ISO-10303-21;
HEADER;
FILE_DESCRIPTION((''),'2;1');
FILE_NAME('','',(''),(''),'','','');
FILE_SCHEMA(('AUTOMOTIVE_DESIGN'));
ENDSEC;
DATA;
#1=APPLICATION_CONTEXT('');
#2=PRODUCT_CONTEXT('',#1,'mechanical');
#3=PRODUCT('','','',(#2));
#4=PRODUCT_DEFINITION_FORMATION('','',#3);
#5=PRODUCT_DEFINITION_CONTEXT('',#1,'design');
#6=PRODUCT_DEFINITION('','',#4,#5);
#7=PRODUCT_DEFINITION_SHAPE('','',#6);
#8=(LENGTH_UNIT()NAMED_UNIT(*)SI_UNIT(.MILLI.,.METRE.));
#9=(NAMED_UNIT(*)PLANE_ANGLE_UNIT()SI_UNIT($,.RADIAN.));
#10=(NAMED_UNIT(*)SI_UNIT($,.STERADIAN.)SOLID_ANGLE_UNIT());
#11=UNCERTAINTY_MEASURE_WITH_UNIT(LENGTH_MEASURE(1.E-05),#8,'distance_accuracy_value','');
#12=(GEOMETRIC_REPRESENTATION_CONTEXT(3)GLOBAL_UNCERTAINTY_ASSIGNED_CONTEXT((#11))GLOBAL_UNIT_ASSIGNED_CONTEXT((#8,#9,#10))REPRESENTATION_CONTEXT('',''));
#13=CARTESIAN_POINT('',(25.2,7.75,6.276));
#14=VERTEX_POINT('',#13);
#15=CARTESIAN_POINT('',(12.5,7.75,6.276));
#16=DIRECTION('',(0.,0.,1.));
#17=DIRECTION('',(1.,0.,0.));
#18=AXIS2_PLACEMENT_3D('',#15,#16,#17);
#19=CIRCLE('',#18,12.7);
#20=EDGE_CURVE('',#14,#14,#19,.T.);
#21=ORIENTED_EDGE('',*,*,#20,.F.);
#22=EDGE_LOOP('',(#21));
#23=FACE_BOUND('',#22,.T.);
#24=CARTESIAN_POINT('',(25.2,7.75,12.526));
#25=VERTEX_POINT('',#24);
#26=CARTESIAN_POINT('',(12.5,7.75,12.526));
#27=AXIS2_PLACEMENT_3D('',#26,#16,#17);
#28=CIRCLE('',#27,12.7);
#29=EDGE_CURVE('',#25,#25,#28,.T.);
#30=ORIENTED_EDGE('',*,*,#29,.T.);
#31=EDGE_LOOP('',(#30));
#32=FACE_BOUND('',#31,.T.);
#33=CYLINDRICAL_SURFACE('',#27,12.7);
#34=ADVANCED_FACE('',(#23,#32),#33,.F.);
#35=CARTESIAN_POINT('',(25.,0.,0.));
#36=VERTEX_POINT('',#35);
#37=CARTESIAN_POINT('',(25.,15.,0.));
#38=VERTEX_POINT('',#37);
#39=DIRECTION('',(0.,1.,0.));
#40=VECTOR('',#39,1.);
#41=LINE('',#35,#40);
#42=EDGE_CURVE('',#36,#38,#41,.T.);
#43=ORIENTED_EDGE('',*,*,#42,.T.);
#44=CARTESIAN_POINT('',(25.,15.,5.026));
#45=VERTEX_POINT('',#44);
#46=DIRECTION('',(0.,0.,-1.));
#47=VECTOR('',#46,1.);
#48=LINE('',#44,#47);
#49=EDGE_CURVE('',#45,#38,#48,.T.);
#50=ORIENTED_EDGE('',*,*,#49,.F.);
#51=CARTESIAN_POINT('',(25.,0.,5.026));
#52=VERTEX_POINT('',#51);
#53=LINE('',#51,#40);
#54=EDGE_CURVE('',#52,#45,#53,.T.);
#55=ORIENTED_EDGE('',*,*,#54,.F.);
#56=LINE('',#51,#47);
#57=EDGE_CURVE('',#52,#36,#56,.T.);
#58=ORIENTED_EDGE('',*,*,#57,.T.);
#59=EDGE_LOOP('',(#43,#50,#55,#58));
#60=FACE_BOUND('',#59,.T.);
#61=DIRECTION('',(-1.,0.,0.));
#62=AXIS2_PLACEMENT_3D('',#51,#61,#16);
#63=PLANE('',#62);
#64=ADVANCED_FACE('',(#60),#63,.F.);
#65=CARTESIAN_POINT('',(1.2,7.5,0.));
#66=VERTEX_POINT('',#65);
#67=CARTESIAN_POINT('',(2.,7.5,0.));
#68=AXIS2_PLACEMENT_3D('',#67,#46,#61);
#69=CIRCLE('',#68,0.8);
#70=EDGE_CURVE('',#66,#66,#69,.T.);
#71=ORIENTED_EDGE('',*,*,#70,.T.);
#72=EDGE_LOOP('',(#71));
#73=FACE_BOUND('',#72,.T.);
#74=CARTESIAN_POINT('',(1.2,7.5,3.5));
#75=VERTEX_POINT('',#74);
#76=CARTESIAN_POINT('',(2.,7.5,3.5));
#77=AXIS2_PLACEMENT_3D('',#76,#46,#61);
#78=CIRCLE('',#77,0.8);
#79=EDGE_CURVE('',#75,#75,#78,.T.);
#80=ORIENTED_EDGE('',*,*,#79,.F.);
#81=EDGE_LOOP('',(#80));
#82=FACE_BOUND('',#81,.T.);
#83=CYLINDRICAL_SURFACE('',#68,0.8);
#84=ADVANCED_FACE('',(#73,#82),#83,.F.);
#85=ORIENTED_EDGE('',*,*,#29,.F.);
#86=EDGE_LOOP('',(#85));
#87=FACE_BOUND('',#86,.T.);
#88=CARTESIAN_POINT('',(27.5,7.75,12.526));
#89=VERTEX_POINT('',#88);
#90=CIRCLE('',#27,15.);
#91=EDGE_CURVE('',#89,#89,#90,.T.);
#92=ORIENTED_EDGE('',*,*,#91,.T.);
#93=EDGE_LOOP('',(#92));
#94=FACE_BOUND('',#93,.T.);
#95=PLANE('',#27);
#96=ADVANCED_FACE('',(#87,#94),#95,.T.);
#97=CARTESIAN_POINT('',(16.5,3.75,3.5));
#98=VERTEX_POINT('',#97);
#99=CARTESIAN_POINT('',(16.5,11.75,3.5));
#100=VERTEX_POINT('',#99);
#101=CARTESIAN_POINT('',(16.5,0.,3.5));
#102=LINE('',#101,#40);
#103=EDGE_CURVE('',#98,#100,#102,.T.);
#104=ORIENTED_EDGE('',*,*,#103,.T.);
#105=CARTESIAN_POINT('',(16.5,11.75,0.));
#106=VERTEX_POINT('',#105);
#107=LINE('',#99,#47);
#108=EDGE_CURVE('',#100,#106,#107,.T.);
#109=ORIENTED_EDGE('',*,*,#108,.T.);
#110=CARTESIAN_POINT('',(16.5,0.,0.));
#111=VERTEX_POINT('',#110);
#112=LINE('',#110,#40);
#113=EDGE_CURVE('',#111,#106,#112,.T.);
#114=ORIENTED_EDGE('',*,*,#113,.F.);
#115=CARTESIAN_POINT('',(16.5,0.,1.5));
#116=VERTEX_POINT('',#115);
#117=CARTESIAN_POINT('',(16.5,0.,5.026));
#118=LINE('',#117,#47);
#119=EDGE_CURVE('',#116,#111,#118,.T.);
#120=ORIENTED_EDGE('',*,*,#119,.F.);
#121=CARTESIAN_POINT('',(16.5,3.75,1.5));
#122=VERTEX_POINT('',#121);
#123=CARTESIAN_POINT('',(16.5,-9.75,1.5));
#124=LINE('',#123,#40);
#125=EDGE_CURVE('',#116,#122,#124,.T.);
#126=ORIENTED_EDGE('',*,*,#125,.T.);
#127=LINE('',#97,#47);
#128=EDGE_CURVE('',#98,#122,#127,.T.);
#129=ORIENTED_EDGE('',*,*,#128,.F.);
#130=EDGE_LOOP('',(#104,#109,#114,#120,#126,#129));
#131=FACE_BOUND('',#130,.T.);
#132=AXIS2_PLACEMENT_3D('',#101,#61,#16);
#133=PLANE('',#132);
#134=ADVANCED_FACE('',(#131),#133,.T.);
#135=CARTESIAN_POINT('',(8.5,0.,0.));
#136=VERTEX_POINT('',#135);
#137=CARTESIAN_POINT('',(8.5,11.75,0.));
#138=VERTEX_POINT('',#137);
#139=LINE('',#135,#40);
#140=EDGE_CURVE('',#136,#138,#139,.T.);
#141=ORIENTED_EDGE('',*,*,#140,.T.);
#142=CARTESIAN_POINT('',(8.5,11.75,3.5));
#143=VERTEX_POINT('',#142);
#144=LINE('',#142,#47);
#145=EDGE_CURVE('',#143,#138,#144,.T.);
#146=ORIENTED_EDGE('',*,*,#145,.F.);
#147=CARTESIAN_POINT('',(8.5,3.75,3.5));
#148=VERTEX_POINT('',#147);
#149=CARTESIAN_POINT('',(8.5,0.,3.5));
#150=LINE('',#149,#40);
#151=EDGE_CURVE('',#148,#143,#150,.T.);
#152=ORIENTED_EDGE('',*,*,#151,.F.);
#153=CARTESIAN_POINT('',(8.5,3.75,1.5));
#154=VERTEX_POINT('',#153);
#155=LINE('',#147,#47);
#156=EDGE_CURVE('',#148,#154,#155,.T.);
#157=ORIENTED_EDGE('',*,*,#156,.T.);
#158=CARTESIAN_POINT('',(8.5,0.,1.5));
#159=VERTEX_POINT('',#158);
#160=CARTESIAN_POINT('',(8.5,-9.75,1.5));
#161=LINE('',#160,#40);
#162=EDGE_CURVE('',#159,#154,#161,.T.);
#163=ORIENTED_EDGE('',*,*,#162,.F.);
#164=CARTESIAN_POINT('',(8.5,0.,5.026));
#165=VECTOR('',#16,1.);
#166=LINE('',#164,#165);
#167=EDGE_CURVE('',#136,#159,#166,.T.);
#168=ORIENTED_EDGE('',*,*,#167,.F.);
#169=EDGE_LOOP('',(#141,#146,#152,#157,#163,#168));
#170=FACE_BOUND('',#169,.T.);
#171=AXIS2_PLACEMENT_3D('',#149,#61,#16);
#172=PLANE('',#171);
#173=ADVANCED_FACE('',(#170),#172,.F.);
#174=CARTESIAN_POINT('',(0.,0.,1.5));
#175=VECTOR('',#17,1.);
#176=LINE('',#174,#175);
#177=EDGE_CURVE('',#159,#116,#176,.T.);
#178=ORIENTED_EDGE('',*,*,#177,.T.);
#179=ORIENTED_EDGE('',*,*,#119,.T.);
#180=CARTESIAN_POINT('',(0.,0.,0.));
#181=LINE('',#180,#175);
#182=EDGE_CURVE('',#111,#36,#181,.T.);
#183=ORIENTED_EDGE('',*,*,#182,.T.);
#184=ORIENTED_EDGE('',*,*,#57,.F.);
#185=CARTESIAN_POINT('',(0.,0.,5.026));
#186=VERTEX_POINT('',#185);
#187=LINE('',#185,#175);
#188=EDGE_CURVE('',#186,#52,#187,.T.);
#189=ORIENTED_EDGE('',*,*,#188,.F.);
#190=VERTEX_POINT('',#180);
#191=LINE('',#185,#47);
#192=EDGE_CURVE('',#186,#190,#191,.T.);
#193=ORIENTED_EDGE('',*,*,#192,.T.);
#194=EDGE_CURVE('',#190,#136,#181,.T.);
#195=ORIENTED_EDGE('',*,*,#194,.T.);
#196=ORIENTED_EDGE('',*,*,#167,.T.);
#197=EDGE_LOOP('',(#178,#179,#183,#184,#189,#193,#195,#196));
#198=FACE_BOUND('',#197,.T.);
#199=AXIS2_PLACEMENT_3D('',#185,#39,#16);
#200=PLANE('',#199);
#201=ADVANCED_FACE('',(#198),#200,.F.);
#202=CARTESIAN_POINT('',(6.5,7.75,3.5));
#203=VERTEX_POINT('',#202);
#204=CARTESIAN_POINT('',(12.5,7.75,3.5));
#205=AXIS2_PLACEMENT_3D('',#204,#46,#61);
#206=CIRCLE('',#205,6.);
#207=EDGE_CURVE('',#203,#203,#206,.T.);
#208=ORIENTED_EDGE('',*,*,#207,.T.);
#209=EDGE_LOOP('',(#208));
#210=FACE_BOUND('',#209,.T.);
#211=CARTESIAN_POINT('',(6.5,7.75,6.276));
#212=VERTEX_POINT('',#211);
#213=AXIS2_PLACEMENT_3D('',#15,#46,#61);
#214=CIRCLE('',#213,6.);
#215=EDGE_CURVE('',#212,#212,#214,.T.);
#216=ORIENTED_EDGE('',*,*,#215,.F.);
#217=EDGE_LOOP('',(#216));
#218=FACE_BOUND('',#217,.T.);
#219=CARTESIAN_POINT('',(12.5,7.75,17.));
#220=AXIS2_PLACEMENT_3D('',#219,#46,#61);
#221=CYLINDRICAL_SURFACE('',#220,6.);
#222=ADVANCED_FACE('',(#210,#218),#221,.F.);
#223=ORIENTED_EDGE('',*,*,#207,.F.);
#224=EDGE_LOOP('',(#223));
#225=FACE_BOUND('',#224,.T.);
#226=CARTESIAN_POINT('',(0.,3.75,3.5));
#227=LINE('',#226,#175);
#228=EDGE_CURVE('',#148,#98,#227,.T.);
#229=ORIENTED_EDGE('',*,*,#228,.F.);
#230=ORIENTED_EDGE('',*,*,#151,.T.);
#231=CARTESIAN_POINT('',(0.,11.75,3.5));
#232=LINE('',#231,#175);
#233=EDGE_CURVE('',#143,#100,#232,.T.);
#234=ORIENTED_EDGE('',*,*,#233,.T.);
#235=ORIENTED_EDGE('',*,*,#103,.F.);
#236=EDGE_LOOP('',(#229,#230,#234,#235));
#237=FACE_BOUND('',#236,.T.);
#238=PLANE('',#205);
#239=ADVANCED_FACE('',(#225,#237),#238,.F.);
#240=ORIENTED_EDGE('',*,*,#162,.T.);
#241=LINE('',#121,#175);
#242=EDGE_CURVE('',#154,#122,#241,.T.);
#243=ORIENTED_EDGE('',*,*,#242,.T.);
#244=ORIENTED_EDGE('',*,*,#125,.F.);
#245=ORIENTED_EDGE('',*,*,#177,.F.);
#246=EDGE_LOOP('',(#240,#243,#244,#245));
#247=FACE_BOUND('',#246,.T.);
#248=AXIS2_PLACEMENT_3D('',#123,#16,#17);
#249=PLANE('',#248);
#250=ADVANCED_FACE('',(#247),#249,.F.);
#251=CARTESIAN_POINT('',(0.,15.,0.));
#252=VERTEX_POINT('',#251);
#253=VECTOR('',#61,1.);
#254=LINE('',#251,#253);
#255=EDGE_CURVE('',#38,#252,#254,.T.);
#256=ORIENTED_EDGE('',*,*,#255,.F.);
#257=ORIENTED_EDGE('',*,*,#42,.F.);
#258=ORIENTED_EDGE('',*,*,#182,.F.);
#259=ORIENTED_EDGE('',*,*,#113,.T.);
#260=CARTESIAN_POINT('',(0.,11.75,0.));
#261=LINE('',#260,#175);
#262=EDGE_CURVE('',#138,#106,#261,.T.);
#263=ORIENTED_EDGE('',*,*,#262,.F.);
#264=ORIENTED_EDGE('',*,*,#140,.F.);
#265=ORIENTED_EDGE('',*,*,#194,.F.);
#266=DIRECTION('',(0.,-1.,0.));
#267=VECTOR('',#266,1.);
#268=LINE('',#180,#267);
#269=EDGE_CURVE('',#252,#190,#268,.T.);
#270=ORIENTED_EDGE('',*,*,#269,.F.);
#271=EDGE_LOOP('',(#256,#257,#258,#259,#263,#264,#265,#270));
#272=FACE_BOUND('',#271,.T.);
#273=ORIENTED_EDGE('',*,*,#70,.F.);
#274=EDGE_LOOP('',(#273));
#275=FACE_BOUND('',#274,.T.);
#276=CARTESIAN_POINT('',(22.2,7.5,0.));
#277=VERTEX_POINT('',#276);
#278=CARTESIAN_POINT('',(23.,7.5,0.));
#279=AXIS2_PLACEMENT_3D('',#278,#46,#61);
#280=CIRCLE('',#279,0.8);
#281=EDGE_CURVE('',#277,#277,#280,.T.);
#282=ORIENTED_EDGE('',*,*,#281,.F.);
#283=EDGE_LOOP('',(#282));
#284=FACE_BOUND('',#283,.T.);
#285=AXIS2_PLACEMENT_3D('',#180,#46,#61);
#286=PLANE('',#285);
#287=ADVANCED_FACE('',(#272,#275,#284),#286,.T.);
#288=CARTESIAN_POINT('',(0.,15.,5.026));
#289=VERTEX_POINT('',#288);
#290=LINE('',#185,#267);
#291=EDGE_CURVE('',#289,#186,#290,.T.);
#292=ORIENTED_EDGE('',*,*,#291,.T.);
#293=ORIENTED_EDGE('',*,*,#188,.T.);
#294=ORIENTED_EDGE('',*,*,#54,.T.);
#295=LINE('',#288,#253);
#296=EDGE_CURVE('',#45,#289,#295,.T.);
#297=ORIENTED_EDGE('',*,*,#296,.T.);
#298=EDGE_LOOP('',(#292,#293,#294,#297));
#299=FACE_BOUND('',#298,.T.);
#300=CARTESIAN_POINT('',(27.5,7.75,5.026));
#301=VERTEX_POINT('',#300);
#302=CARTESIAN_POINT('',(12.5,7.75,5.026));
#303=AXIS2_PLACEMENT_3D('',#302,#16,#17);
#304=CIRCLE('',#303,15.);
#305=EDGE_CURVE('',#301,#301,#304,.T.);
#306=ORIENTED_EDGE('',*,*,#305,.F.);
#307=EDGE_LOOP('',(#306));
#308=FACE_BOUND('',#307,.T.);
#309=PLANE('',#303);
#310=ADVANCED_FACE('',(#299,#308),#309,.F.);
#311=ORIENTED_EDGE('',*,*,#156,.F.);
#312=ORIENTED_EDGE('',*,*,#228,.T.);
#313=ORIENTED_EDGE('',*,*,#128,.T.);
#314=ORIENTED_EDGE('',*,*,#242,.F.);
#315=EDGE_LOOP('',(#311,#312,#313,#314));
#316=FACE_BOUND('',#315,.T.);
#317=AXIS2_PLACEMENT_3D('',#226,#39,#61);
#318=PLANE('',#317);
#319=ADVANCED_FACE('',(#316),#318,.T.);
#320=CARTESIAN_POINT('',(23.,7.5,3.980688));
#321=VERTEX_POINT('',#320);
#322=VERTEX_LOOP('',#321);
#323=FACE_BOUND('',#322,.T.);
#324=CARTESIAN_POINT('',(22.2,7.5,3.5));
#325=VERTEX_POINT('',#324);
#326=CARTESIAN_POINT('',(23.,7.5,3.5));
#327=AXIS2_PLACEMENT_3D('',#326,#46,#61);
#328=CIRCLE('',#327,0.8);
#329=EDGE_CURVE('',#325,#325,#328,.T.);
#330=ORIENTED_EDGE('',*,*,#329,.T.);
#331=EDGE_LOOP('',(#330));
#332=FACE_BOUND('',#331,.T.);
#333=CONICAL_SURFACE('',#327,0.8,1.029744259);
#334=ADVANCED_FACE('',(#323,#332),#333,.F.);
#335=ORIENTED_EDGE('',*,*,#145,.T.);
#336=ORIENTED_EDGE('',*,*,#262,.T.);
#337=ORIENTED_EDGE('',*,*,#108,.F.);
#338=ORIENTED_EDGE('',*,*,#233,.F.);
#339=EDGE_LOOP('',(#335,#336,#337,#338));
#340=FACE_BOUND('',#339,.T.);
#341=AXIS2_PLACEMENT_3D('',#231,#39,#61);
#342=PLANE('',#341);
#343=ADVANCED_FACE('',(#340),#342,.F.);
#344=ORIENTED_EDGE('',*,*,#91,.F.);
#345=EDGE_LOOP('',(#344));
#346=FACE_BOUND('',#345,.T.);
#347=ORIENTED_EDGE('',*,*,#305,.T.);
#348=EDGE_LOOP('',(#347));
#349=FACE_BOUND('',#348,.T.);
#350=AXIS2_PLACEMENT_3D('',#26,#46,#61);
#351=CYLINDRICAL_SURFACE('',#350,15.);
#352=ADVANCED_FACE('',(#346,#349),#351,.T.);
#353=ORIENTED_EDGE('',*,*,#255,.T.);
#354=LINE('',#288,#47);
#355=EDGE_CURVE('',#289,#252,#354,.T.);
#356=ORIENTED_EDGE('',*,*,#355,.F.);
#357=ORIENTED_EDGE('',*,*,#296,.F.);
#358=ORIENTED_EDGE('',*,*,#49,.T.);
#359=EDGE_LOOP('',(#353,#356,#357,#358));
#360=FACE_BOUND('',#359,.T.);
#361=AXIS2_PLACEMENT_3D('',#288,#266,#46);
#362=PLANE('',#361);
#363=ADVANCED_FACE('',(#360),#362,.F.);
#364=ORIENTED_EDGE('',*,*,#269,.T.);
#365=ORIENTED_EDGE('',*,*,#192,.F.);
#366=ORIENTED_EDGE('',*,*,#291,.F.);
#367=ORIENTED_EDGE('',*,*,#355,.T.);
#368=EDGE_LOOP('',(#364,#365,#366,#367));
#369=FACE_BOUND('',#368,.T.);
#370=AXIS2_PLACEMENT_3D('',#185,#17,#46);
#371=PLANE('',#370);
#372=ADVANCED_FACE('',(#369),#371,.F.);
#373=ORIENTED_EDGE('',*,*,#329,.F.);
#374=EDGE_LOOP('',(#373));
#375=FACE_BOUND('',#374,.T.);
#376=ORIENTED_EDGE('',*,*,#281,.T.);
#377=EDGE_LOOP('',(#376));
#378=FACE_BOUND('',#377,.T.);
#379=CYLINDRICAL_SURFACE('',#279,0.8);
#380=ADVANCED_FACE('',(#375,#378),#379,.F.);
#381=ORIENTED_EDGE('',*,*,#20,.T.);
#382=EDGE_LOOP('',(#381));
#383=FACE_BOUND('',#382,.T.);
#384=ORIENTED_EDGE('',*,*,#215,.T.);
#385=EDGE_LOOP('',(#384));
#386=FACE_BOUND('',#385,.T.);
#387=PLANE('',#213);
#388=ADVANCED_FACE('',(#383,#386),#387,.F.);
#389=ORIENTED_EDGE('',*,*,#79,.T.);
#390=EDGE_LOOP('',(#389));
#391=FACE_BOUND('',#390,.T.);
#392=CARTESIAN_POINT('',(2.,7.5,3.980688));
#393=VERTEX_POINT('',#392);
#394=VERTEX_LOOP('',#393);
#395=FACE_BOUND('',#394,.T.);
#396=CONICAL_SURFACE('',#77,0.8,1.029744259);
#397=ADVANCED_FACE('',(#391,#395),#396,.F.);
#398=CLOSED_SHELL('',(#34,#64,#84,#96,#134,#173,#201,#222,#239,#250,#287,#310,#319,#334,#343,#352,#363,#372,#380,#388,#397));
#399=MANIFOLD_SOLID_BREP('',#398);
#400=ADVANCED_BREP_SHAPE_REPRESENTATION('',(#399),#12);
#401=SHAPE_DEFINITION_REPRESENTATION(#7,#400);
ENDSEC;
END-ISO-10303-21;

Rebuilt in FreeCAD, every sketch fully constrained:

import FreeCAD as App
import Part
import Sketcher

V = App.Vector
Q = App.Units.Quantity


def add_polygon(sketch, points):
    """Adds a closed chain of lines whose ends are joined by coincident constraints."""
    first, n = sketch.GeometryCount, len(points)
    for a, b in zip(points, points[1:] + points[:1]):
        sketch.addGeometry(Part.LineSegment(App.Vector(*a, 0), App.Vector(*b, 0)), False)
    for i in range(n):
        sketch.addConstraint(Sketcher.Constraint("Coincident", first + i, 2, first + (i + 1) % n, 1))

doc = App.newDocument("Part")
body = doc.addObject("PartDesign::Body", "Body")

sketch1 = body.newObject("Sketcher::SketchObject", "Sketch")
sketch1.AttachmentSupport = (doc.getObject("XY_Plane"), [""])
sketch1.MapMode = "FlatFace"
add_polygon(sketch1, [(0, 15), (0, 0), (25, 0), (25, 15)])
sketch1.addConstraint(Sketcher.Constraint("Vertical", 0))
sketch1.addConstraint(Sketcher.Constraint("Horizontal", 1))
sketch1.addConstraint(Sketcher.Constraint("Vertical", 2))
sketch1.addConstraint(Sketcher.Constraint("Horizontal", 3))
sketch1.addConstraint(Sketcher.Constraint("Coincident", 0, 2, -1, 1))
sketch1.addConstraint(Sketcher.Constraint("DistanceX", 1, 1, 1, 2, Q("25 mm")))
sketch1.addConstraint(Sketcher.Constraint("DistanceY", 0, 2, 0, 1, Q("15 mm")))
pad1 = body.newObject("PartDesign::Pad", "Pad")
pad1.Profile = sketch1
pad1.Length = 5.026

sketch2 = body.newObject("Sketcher::SketchObject", "Sketch001")
sketch2.AttachmentSupport = (doc.getObject("XY_Plane"), [""])
sketch2.MapMode = "FlatFace"
sketch2.addGeometry(Part.Circle(V(23, 7.5, 0), V(0, 0, 1), 0.8), False)
sketch2.addGeometry(Part.Circle(V(2, 7.5, 0), V(0, 0, 1), 0.8), False)
sketch2.addConstraint(Sketcher.Constraint("Equal", 0, 1))
sketch2.addConstraint(Sketcher.Constraint("Horizontal", 0, 3, 1, 3))
sketch2.addConstraint(Sketcher.Constraint("Diameter", 0, Q("1.6 mm")))
sketch2.addConstraint(Sketcher.Constraint("DistanceX", -1, 1, 0, 3, Q("23 mm")))
sketch2.addConstraint(Sketcher.Constraint("DistanceX", -1, 1, 1, 3, Q("2 mm")))
sketch2.addConstraint(Sketcher.Constraint("DistanceY", -1, 1, 0, 3, Q("7.5 mm")))
doc.recompute()
hole = body.newObject("PartDesign::Hole", "Hole")
hole.Profile = sketch2
hole.ThreadType = "None"
hole.Diameter = 1.6
hole.DepthType = "Dimension"
hole.Depth = 3.5
hole.DrillPoint = "Angled"
hole.DrillPointAngle = 118
hole.Reversed = True

sketch3 = body.newObject("Sketcher::SketchObject", "Sketch002")
sketch3.AttachmentSupport = (doc.getObject("XY_Plane"), [""])
sketch3.MapMode = "FlatFace"
sketch3.AttachmentOffset = App.Placement(V(0, 0, 5.026), App.Rotation())
sketch3.addGeometry(Part.Circle(V(12, 8, 0), V(0, 0, 1), 15), False)
sketch3.addConstraint(Sketcher.Constraint("Diameter", 0, Q("30 mm")))
sketch3.addConstraint(Sketcher.Constraint("DistanceX", -1, 1, 0, 3, Q("12.5 mm")))
sketch3.addConstraint(Sketcher.Constraint("DistanceY", -1, 1, 0, 3, Q("7.75 mm")))
pad2 = body.newObject("PartDesign::Pad", "Pad001")
pad2.Profile = sketch3
pad2.Length = 7.5

sketch4 = body.newObject("Sketcher::SketchObject", "Sketch003")
sketch4.AttachmentSupport = (doc.getObject("XY_Plane"), [""])
sketch4.MapMode = "FlatFace"
sketch4.AttachmentOffset = App.Placement(V(0, 0, 12.526), App.Rotation())
sketch4.addGeometry(Part.Circle(V(12, 8, 0), V(0, 0, 1), 12), False)
sketch4.addConstraint(Sketcher.Constraint("Diameter", 0, Q("24.5 mm")))
sketch4.addConstraint(Sketcher.Constraint("DistanceX", -1, 1, 0, 3, Q("12.5 mm")))
sketch4.addConstraint(Sketcher.Constraint("DistanceY", -1, 1, 0, 3, Q("7.75 mm")))
pocket1 = body.newObject("PartDesign::Pocket", "Pocket")
pocket1.Profile = sketch4
pocket1.Length = 5.25

sketch5 = body.newObject("Sketcher::SketchObject", "Sketch004")
sketch5.AttachmentSupport = (doc.getObject("XY_Plane"), [""])
sketch5.MapMode = "FlatFace"
sketch5.AttachmentOffset = App.Placement(V(0, 0, 12.526), App.Rotation())
sketch5.addGeometry(Part.Circle(V(12, 8, 0), V(0, 0, 1), 13), False)
sketch5.addConstraint(Sketcher.Constraint("Diameter", 0, Q("25.4 mm")))
sketch5.addConstraint(Sketcher.Constraint("DistanceX", -1, 1, 0, 3, Q("12.5 mm")))
sketch5.addConstraint(Sketcher.Constraint("DistanceY", -1, 1, 0, 3, Q("7.75 mm")))
doc.recompute()
hole2 = body.newObject("PartDesign::Hole", "Hole001")
hole2.Profile = sketch5
hole2.ThreadType = "None"
hole2.Diameter = 25.4
hole2.DepthType = "Dimension"
hole2.Depth = 6.25
hole2.DrillPoint = "Flat"

sketch6 = body.newObject("Sketcher::SketchObject", "Sketch005")
sketch6.AttachmentSupport = (doc.getObject("XY_Plane"), [""])
sketch6.MapMode = "FlatFace"
add_polygon(sketch6, [(16, 12), (16, 4), (8, 4), (8, 12)])
sketch6.addConstraint(Sketcher.Constraint("Vertical", 0))
sketch6.addConstraint(Sketcher.Constraint("Horizontal", 1))
sketch6.addConstraint(Sketcher.Constraint("Vertical", 2))
sketch6.addConstraint(Sketcher.Constraint("Horizontal", 3))
sketch6.addConstraint(Sketcher.Constraint("Equal", 3, 0))
sketch6.addConstraint(Sketcher.Constraint("DistanceX", 1, 2, 1, 1, Q("8 mm")))
sketch6.addConstraint(Sketcher.Constraint("DistanceX", -1, 1, 0, 2, Q("16.5 mm")))
sketch6.addConstraint(Sketcher.Constraint("DistanceY", -1, 1, 0, 2, Q("3.75 mm")))
pocket2 = body.newObject("PartDesign::Pocket", "Pocket001")
pocket2.Profile = sketch6
pocket2.Length = 3.5
pocket2.Reversed = True

sketch7 = body.newObject("Sketcher::SketchObject", "Sketch006")
sketch7.AttachmentSupport = (doc.getObject("XZ_Plane"), [""])
sketch7.MapMode = "FlatFace"
sketch7.AttachmentOffset = App.Placement(V(0, 0, -3.75), App.Rotation())
add_polygon(sketch7, [(8.5, 0), (8.5, 1.5), (16.5, 1.5), (16.5, 0)])
sketch7.addConstraint(Sketcher.Constraint("Vertical", 0))
sketch7.addConstraint(Sketcher.Constraint("Horizontal", 1))
sketch7.addConstraint(Sketcher.Constraint("Vertical", 2))
sketch7.addConstraint(Sketcher.Constraint("Horizontal", 3))
sketch7.addConstraint(Sketcher.Constraint("PointOnObject", 2, 2, -1))
sketch7.addConstraint(Sketcher.Constraint("DistanceX", 1, 1, 1, 2, Q("8 mm")))
sketch7.addConstraint(Sketcher.Constraint("DistanceY", 0, 1, 0, 2, Q("1.5 mm")))
sketch7.addConstraint(Sketcher.Constraint("DistanceX", -1, 1, 0, 2, Q("8.5 mm")))
pocket3 = body.newObject("PartDesign::Pocket", "Pocket002")
pocket3.Profile = sketch7
pocket3.Length = 13.5
pocket3.Reversed = True

sketch8 = body.newObject("Sketcher::SketchObject", "Sketch007")
sketch8.AttachmentSupport = (doc.getObject("XY_Plane"), [""])
sketch8.MapMode = "FlatFace"
sketch8.AttachmentOffset = App.Placement(V(0, 0, 3.5), App.Rotation())
sketch8.addGeometry(Part.Circle(V(12, 8, 0), V(0, 0, 1), 6), False)
sketch8.addConstraint(Sketcher.Constraint("Diameter", 0, Q("12 mm")))
sketch8.addConstraint(Sketcher.Constraint("DistanceX", -1, 1, 0, 3, Q("12.5 mm")))
sketch8.addConstraint(Sketcher.Constraint("DistanceY", -1, 1, 0, 3, Q("7.75 mm")))
pocket4 = body.newObject("PartDesign::Pocket", "Pocket003")
pocket4.Profile = sketch8
pocket4.Length = 13.5
pocket4.Reversed = True

doc.recompute()
